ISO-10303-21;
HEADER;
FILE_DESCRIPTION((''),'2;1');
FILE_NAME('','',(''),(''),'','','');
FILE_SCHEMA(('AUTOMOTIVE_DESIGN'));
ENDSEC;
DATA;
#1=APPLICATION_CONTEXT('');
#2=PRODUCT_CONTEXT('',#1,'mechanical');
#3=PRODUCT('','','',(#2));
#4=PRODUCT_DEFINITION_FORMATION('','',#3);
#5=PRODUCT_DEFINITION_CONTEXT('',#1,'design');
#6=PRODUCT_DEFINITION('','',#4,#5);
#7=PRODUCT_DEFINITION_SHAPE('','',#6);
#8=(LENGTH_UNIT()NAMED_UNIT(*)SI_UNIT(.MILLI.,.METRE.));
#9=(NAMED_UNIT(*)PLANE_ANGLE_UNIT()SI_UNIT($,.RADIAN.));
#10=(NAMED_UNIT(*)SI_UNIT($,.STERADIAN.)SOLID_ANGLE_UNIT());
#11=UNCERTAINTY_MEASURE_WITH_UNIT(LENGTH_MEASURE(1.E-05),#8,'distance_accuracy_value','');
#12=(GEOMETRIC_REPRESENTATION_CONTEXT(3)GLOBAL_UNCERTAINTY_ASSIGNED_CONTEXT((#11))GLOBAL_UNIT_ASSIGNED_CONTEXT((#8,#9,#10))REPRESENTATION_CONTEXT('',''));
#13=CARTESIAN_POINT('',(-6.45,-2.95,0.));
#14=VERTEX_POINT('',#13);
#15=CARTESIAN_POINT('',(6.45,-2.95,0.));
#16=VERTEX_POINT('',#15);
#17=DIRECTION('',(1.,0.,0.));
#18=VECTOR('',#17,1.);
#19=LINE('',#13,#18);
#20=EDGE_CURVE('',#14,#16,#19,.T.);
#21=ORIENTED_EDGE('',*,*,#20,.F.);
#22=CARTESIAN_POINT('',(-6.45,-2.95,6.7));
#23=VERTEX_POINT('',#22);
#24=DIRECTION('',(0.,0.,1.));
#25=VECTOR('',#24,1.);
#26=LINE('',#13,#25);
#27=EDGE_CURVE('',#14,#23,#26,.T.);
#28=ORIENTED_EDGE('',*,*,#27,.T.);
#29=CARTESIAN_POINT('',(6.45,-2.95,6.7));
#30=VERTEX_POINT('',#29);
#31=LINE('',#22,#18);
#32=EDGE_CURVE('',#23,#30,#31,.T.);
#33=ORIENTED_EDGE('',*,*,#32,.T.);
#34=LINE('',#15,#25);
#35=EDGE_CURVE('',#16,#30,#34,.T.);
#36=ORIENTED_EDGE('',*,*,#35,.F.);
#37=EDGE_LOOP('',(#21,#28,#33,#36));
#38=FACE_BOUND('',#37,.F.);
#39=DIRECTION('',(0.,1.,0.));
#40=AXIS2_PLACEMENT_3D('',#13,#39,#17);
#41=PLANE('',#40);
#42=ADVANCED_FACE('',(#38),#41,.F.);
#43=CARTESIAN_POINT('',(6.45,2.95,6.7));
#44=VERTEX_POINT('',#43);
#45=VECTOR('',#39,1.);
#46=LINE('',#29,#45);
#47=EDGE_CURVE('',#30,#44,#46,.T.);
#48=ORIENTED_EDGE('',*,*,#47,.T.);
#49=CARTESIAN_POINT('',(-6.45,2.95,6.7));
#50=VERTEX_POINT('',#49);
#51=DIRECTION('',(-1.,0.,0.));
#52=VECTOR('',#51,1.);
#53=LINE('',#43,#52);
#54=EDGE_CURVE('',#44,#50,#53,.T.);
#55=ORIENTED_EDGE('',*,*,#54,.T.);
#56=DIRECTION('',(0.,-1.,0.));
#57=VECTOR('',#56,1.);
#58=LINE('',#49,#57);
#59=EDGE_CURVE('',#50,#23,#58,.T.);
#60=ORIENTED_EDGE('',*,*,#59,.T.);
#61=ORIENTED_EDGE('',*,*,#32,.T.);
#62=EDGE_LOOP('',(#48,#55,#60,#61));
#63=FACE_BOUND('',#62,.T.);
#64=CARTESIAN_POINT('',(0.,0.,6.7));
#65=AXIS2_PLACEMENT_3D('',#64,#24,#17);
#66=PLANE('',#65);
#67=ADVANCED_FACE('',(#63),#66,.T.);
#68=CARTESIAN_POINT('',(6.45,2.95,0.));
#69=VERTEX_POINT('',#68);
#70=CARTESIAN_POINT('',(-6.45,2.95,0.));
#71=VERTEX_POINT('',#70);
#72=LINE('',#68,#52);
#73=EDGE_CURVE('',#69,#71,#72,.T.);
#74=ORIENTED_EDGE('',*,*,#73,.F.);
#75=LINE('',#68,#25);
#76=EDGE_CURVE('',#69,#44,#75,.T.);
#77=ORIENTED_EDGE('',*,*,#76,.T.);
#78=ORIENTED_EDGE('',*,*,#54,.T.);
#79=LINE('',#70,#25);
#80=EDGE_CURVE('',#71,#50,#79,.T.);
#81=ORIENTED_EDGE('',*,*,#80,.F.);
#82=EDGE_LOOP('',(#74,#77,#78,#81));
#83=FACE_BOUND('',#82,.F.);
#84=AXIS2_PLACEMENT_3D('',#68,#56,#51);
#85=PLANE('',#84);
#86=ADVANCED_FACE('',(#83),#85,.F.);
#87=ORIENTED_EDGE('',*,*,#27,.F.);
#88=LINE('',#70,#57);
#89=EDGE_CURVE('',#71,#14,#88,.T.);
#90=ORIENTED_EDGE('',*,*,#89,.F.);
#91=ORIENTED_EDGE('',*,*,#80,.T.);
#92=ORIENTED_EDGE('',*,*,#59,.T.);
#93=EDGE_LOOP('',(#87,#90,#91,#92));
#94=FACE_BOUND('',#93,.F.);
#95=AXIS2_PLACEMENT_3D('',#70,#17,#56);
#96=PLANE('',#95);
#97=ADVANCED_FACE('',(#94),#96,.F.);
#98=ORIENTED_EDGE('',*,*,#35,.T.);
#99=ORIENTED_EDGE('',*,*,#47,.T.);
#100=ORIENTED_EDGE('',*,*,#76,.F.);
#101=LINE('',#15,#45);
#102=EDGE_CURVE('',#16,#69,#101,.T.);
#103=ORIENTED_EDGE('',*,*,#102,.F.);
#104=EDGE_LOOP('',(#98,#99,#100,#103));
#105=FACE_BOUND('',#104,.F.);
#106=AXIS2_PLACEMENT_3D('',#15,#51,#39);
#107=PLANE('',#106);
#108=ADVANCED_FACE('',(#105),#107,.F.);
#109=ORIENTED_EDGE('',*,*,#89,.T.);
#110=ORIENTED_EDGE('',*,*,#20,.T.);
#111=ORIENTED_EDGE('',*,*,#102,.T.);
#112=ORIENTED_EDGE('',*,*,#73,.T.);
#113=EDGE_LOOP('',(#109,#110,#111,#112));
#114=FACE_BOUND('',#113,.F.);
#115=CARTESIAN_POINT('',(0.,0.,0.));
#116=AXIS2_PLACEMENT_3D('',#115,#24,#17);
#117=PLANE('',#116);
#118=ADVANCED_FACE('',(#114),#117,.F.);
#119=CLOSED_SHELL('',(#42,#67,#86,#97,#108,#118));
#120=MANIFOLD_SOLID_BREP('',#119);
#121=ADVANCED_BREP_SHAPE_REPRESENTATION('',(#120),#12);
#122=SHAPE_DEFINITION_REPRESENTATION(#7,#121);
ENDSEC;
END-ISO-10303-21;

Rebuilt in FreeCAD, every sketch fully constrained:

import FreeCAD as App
import Part
import Sketcher

V = App.Vector
Q = App.Units.Quantity


def add_polygon(sketch, points):
    """Adds a closed chain of lines whose ends are joined by coincident constraints."""
    first, n = sketch.GeometryCount, len(points)
    for a, b in zip(points, points[1:] + points[:1]):
        sketch.addGeometry(Part.LineSegment(App.Vector(*a, 0), App.Vector(*b, 0)), False)
    for i in range(n):
        sketch.addConstraint(Sketcher.Constraint("Coincident", first + i, 2, first + (i + 1) % n, 1))

doc = App.newDocument("Part")
body = doc.addObject("PartDesign::Body", "Body")

sketch1 = doc.addObject("Sketcher::SketchObject", "Sketch")
body.addObject(sketch1)
sketch1.AttachmentSupport = (doc.XY_Plane, [""])
sketch1.MapMode = "FlatFace"
add_polygon(sketch1, [(-6, 3), (-6, -3), (6, -3), (6, 3)])
sketch1.addConstraint([
    Sketcher.Constraint("Vertical", 0),
    Sketcher.Constraint("Horizontal", 1),
    Sketcher.Constraint("Vertical", 2),
    Sketcher.Constraint("Horizontal", 3),
    Sketcher.Constraint("Symmetric", 0, 2, 2, 2, -1, 1),
    Sketcher.Constraint("DistanceX", 1, 1, 1, 2, Q("12.9 mm")),
    Sketcher.Constraint("DistanceY", 0, 2, 0, 1, Q("5.9 mm")),
])
pad1 = doc.addObject("PartDesign::Pad", "Pad")
body.addObject(pad1)
pad1.Profile = sketch1
pad1.Length = 6.7

doc.recompute()
